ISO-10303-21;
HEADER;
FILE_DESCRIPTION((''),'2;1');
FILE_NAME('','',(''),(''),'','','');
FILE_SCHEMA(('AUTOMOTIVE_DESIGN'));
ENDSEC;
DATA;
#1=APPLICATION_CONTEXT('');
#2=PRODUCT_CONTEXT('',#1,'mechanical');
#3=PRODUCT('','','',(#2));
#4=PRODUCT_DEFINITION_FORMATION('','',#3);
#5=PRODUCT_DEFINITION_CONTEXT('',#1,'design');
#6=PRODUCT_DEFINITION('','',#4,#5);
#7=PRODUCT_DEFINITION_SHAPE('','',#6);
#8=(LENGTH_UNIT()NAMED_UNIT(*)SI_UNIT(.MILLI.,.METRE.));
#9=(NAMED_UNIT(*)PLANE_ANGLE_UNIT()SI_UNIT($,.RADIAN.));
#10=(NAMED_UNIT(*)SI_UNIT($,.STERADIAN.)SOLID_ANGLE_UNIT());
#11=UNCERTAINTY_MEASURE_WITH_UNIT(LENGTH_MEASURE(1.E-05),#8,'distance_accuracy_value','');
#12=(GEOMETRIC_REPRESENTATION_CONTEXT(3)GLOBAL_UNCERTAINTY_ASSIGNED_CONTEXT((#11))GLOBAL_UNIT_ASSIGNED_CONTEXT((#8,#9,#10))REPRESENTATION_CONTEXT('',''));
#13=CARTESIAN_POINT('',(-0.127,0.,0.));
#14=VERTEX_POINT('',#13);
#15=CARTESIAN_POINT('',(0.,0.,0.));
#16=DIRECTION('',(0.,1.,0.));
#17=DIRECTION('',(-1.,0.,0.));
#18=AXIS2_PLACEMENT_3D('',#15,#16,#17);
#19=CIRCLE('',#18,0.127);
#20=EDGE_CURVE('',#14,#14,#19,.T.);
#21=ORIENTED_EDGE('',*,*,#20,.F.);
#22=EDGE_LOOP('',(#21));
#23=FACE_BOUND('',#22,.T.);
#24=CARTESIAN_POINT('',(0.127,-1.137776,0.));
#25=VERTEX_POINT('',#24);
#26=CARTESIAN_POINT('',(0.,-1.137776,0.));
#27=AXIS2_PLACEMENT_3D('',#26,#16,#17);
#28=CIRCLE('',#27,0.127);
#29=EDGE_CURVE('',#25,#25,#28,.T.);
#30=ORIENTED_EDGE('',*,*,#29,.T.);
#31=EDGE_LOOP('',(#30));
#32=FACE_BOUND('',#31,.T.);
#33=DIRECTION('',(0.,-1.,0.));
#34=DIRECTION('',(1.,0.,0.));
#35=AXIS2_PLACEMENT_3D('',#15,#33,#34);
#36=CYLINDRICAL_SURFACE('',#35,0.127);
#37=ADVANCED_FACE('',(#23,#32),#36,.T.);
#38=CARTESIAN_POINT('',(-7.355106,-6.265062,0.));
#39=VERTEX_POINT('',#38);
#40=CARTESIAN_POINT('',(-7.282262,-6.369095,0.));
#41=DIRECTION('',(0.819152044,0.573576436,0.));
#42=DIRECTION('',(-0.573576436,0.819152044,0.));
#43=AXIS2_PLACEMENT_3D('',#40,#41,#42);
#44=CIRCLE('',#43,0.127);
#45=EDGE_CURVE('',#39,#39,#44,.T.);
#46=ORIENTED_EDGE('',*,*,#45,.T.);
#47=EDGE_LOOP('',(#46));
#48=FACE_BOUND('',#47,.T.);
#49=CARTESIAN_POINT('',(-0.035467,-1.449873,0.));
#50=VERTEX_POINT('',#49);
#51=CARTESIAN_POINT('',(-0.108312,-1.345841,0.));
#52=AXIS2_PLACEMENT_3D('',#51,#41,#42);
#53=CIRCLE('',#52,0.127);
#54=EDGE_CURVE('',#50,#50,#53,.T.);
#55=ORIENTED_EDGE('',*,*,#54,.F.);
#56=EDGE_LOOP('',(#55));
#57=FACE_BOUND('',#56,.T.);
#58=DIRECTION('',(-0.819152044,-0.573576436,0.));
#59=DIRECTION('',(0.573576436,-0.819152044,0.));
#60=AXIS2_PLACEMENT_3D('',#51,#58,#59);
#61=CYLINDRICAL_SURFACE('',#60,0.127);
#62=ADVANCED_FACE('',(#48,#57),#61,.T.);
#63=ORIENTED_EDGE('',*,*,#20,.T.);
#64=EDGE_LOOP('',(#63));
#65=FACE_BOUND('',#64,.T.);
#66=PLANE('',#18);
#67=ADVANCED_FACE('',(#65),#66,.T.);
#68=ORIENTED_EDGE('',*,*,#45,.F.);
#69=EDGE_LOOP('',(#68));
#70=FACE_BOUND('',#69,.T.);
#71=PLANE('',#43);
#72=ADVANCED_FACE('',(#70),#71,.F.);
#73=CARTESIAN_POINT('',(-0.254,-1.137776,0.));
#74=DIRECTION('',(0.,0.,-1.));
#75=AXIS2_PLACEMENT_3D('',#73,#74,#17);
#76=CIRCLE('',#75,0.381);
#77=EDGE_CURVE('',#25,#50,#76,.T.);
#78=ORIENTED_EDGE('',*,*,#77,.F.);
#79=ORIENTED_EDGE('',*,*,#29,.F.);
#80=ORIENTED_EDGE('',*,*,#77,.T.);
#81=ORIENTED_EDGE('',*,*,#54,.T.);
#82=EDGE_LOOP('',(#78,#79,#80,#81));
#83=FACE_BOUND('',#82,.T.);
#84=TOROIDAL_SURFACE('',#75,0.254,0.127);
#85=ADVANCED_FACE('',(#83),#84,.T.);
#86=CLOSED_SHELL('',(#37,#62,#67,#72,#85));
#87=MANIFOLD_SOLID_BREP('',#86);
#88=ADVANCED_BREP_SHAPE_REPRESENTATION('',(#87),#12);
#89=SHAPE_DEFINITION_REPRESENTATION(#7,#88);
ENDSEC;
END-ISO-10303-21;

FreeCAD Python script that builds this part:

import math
import FreeCAD as App
import Part
import Sketcher
Q = App.Units.Quantity

doc = App.newDocument("Part")
body = doc.addObject("PartDesign::Body", "Body")

# Sketch on XZ plane
sketch1 = body.newObject("Sketcher::SketchObject", "Sketch")
sketch1.AttachmentSupport = (doc.getObject("XZ_Plane"), [""])
sketch1.MapMode = "FlatFace"
sketch1.addGeometry(Part.Circle(App.Vector(0, 0, 0), App.Vector(0, 0, 1), 0.127), False)
sketch1.addConstraint(Sketcher.Constraint("Coincident", 0, 3, -1, 1))
sketch1.addConstraint(Sketcher.Constraint("Diameter", 0, Q("0.01 in")))

# Sketch on XY plane
sketch2 = body.newObject("Sketcher::SketchObject", "Sketch001")
sketch2.AttachmentSupport = (doc.getObject("XY_Plane"), [""])
sketch2.MapMode = "FlatFace"
sketch2.addGeometry(Part.LineSegment(App.Vector(0, 0, 0), App.Vector(0, -1.137776, 0)), False)
sketch2.addGeometry(Part.ArcOfCircle(Part.Circle(App.Vector(-0.254, -1.137776, 0), App.Vector(0, 0, 1), 0.254), math.radians(-55), math.radians(0)), False)
sketch2.addGeometry(Part.LineSegment(App.Vector(-0.108312, -1.345841, 0), App.Vector(-7.282262, -6.369095, 0)), False)
sketch2.addConstraint(Sketcher.Constraint("Tangent", 0, 2, 1, 2))
sketch2.addConstraint(Sketcher.Constraint("Tangent", 1, 1, 2, 1))
sketch2.addConstraint(Sketcher.Constraint("Vertical", 0))
sketch2.addConstraint(Sketcher.Constraint("Coincident", 0, 1, -1, 1))
sketch2.addConstraint(Sketcher.Constraint("Radius", 1, Q("0.01 in")))
sketch2.addConstraint(Sketcher.Constraint("Angle", 2, Q("-145 deg")))
sketch2.addConstraint(Sketcher.Constraint("DistanceY", 0, 2, 0, 1, Q("1.137776 mm")))
sketch2.addConstraint(Sketcher.Constraint("DistanceX", 2, 2, -1, 1, Q("7.282262 mm")))
doc.recompute()

additivepipe = body.newObject("PartDesign::AdditivePipe", "AdditivePipe")
additivepipe.Profile = sketch1
additivepipe.Spine = (sketch2, ["Edge1", "Edge2", "Edge3"])

doc.recompute()
